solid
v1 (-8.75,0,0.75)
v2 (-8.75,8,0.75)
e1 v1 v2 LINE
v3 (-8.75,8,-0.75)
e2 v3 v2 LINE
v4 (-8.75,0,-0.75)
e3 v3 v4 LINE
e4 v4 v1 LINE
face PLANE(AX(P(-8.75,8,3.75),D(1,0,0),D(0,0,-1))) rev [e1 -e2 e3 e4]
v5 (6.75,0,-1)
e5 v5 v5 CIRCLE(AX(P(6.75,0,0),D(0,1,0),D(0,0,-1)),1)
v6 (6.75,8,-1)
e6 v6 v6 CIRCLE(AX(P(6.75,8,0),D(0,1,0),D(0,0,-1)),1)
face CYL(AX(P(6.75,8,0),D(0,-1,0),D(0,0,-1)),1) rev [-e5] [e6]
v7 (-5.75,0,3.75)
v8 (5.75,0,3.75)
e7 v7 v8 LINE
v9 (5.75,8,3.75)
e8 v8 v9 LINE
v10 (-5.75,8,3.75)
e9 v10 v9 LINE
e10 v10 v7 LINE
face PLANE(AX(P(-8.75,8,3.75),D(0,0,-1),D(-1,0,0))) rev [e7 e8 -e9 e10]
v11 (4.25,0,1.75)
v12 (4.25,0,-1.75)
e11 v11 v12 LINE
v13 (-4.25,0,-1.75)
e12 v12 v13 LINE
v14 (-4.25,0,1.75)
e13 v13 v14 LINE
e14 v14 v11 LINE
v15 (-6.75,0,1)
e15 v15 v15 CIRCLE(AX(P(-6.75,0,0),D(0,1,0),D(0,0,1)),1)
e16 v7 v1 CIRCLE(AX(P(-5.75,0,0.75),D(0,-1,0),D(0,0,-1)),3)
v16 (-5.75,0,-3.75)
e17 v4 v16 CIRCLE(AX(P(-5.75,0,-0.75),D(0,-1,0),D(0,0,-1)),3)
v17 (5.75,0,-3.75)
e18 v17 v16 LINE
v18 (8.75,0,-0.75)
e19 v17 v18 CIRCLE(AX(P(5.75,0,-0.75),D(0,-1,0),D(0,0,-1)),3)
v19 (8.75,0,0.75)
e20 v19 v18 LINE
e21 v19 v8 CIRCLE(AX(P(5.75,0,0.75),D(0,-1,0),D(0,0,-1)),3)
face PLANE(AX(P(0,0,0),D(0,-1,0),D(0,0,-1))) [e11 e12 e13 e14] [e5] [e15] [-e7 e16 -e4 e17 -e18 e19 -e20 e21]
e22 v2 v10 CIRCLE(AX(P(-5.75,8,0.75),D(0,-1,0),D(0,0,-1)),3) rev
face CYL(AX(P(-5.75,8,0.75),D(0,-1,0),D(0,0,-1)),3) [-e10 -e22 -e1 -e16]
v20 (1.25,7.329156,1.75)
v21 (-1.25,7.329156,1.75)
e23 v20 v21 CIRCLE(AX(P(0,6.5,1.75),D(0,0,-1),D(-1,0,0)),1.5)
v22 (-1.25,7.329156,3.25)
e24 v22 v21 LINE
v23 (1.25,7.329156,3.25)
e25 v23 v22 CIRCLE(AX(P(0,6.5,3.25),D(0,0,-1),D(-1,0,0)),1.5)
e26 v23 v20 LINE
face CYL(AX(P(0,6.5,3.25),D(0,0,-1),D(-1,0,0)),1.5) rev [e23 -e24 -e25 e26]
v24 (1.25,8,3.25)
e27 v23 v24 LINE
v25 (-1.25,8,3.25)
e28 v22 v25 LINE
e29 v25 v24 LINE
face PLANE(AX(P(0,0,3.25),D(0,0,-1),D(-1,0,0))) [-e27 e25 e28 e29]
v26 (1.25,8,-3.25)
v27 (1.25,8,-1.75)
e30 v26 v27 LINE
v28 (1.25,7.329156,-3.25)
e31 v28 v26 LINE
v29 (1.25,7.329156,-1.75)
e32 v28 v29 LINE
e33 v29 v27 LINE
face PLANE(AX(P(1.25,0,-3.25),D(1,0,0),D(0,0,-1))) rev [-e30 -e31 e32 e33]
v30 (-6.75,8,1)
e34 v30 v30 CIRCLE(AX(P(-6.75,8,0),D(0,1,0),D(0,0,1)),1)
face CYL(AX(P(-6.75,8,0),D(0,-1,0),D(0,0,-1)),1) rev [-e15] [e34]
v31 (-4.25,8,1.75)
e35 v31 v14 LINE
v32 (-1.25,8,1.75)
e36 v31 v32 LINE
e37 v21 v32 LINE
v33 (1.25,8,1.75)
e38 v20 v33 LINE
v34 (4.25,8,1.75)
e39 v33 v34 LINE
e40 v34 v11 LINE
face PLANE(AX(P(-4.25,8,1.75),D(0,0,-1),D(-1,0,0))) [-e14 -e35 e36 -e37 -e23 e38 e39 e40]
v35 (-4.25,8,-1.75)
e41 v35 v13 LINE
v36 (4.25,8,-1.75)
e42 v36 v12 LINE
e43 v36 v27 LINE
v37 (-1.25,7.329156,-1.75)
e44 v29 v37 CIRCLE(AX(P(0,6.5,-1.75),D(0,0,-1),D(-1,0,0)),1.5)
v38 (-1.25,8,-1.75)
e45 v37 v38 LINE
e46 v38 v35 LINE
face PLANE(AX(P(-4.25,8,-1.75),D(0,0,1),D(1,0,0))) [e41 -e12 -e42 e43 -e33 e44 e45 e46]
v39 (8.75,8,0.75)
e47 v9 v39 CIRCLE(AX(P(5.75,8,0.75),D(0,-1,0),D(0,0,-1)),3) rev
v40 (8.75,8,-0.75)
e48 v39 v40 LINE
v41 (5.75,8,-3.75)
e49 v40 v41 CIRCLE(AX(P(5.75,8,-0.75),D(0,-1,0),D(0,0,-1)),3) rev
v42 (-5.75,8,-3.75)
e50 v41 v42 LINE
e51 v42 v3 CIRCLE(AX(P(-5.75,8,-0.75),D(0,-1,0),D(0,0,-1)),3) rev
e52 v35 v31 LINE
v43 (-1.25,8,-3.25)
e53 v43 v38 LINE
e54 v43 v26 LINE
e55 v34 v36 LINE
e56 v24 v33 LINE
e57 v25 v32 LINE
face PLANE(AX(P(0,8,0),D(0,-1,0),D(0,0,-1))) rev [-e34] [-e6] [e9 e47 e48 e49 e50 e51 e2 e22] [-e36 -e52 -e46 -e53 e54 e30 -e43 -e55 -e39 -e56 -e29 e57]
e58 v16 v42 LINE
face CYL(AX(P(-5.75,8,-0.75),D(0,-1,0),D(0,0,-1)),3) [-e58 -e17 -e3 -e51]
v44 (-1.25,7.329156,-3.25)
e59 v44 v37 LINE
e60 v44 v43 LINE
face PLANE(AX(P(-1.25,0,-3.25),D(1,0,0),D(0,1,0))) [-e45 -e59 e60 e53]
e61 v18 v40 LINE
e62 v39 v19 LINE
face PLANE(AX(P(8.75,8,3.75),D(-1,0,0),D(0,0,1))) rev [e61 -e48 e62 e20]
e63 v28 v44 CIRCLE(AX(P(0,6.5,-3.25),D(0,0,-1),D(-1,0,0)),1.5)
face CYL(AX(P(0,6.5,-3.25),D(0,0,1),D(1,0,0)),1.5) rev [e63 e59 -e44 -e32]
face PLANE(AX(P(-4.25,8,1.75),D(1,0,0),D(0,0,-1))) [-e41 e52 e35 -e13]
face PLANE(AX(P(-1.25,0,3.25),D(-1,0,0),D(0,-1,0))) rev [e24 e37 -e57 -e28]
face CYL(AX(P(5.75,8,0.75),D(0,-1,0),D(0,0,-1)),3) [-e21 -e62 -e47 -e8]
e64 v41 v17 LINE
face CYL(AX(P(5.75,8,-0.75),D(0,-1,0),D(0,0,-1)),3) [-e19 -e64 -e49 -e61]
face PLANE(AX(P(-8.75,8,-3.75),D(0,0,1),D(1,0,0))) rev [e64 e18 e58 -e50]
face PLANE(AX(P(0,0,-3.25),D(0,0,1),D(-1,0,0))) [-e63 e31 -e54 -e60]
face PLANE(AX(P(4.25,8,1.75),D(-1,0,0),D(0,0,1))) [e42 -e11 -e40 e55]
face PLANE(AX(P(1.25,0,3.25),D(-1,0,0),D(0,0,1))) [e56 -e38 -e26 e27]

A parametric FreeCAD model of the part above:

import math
import FreeCAD as App
import Part
import Sketcher
from FreeCAD import Vector


def edges_at(feature, points):
    """Names of the edges that pass closest to the given points."""
    edges = feature.Shape.Edges
    near = lambda p: min(range(len(edges)), key=lambda i: edges[i].distToShape(Part.Vertex(*p))[0])
    return sorted({f"Edge{near(p) + 1}" for p in points})

doc = App.newDocument("Part")
body = doc.addObject("PartDesign::Body", "Body")

sketch1 = doc.addObject("Sketcher::SketchObject", "Sketch")
body.addObject(sketch1)
sketch1.AttachmentSupport = (doc.XZ_Plane, [""])
sketch1.MapMode = "FlatFace"
sketch1.addGeometry(Part.LineSegment(Vector(-8.8, -3.8, 0), Vector(-8.8, 3.8, 0)), False)
sketch1.addGeometry(Part.LineSegment(Vector(-8.8, 3.8, 0), Vector(8.8, 3.8, 0)), False)
sketch1.addGeometry(Part.LineSegment(Vector(8.8, 3.8, 0), Vector(8.8, -3.8, 0)), False)
sketch1.addGeometry(Part.LineSegment(Vector(8.8, -3.8, 0), Vector(-8.8, -3.8, 0)), False)
sketch1.addGeometry(Part.Circle(Vector(-6.8, 0, 0), Vector(0, 0, 1), 1), False)
sketch1.addGeometry(Part.LineSegment(Vector(4.2, 1.8, 0), Vector(-4.2, 1.8, 0)), False)
sketch1.addGeometry(Part.LineSegment(Vector(-4.2, 1.8, 0), Vector(-4.2, -1.8, 0)), False)
sketch1.addGeometry(Part.LineSegment(Vector(-4.2, -1.8, 0), Vector(4.2, -1.8, 0)), False)
sketch1.addGeometry(Part.LineSegment(Vector(4.2, -1.8, 0), Vector(4.2, 1.8, 0)), False)
sketch1.addGeometry(Part.Circle(Vector(6.8, 0, 0), Vector(0, 0, 1), 1), False)
sketch1.addConstraint(Sketcher.Constraint("Coincident", 0, 2, 1, 1))
sketch1.addConstraint(Sketcher.Constraint("Coincident", 1, 2, 2, 1))
sketch1.addConstraint(Sketcher.Constraint("Coincident", 2, 2, 3, 1))
sketch1.addConstraint(Sketcher.Constraint("Coincident", 3, 2, 0, 1))
sketch1.addConstraint(Sketcher.Constraint("Coincident", 5, 2, 6, 1))
sketch1.addConstraint(Sketcher.Constraint("Coincident", 6, 2, 7, 1))
sketch1.addConstraint(Sketcher.Constraint("Coincident", 7, 2, 8, 1))
sketch1.addConstraint(Sketcher.Constraint("Coincident", 8, 2, 5, 1))
sketch1.addConstraint(Sketcher.Constraint("Vertical", 0))
sketch1.addConstraint(Sketcher.Constraint("Horizontal", 1))
sketch1.addConstraint(Sketcher.Constraint("Vertical", 2))
sketch1.addConstraint(Sketcher.Constraint("Horizontal", 3))
sketch1.addConstraint(Sketcher.Constraint("Horizontal", 5))
sketch1.addConstraint(Sketcher.Constraint("Vertical", 6))
sketch1.addConstraint(Sketcher.Constraint("Horizontal", 7))
sketch1.addConstraint(Sketcher.Constraint("Vertical", 8))
sketch1.addConstraint(Sketcher.Constraint("Equal", 4, 9))
sketch1.addConstraint(Sketcher.Constraint("Symmetric", 4, 3, 9, 3, -1, 1))
sketch1.addConstraint(Sketcher.Constraint("Symmetric", 0, 2, 2, 2, -1, 1))
sketch1.addConstraint(Sketcher.Constraint("Symmetric", 5, 2, 7, 2, -1, 1))
sketch1.addConstraint(Sketcher.Constraint("PointOnObject", 4, 3, -1))
sketch1.addConstraint(Sketcher.Constraint("Diameter", 4, 2.0))
sketch1.addConstraint(Sketcher.Constraint("DistanceX", 1, 1, 1, 2, 17.5))
sketch1.addConstraint(Sketcher.Constraint("DistanceX", 5, 2, 5, 1, 8.5))
sketch1.addConstraint(Sketcher.Constraint("DistanceY", 0, 1, 0, 2, 7.5))
sketch1.addConstraint(Sketcher.Constraint("DistanceY", 6, 2, 6, 1, 3.5))
sketch1.addConstraint(Sketcher.Constraint("DistanceX", 0, 2, 4, 3, 2.0))
pad1 = doc.addObject("PartDesign::Pad", "Pad")
body.addObject(pad1)
pad1.Profile = sketch1
pad1.Length = 8
pad1.Reversed = True
doc.recompute()

fillet = doc.addObject("PartDesign::Fillet", "Fillet")
body.addObject(fillet)
fillet.Base = (pad1, edges_at(pad1, [
    (8.75, 4, 3.75),
    (-8.75, 4, 3.75),
    (-8.75, 4, -3.75),
    (8.75, 4, -3.75),
]))
fillet.Radius = 3

sketch2 = doc.addObject("Sketcher::SketchObject", "Sketch001")
body.addObject(sketch2)
sketch2.AttachmentSupport = (doc.XY_Plane, [""])
sketch2.MapMode = "FlatFace"
sketch2.AttachmentOffset = App.Placement(Vector(0, 0, 1.75), App.Rotation())
sketch2.addGeometry(Part.ArcOfCircle(Part.Circle(Vector(0, 6.5, 0), Vector(0, 0, 1), 1.5), math.radians(146), math.radians(394)), False)
sketch2.addGeometry(Part.LineSegment(Vector(-1.2, 7.3, 0), Vector(-1.2, 8, 0)), False)
sketch2.addGeometry(Part.LineSegment(Vector(-1.2, 8, 0), Vector(1.2, 8, 0)), False)
sketch2.addGeometry(Part.LineSegment(Vector(1.2, 8, 0), Vector(1.2, 7.3, 0)), False)
sketch2.addConstraint(Sketcher.Constraint("Coincident", 0, 1, 1, 1))
sketch2.addConstraint(Sketcher.Constraint("Coincident", 1, 2, 2, 1))
sketch2.addConstraint(Sketcher.Constraint("Coincident", 2, 2, 3, 1))
sketch2.addConstraint(Sketcher.Constraint("Coincident", 3, 2, 0, 2))
sketch2.addConstraint(Sketcher.Constraint("Vertical", 1))
sketch2.addConstraint(Sketcher.Constraint("Horizontal", 2))
sketch2.addConstraint(Sketcher.Constraint("Vertical", 3))
sketch2.addConstraint(Sketcher.Constraint("Symmetric", 0, 1, 3, 2, -2))
sketch2.addConstraint(Sketcher.Constraint("Radius", 0, 1.5))
sketch2.addConstraint(Sketcher.Constraint("DistanceX", 2, 1, 2, 2, 2.5))
sketch2.addConstraint(Sketcher.Constraint("DistanceY", -1, 1, 1, 2, 8.0))
sketch2.addConstraint(Sketcher.Constraint("DistanceY", -1, 1, 0, 3, 6.5))
pocket1 = doc.addObject("PartDesign::Pocket", "Pocket")
body.addObject(pocket1)
pocket1.Profile = sketch2
pocket1.Length = 1.5
pocket1.Reversed = True
doc.recompute()

mirrored = doc.addObject("PartDesign::Mirrored", "Mirrored")
body.addObject(mirrored)
mirrored.Originals = [pocket1]
mirrored.MirrorPlane = (doc.XY_Plane, [""])
body.Tip = mirrored

doc.recompute()
